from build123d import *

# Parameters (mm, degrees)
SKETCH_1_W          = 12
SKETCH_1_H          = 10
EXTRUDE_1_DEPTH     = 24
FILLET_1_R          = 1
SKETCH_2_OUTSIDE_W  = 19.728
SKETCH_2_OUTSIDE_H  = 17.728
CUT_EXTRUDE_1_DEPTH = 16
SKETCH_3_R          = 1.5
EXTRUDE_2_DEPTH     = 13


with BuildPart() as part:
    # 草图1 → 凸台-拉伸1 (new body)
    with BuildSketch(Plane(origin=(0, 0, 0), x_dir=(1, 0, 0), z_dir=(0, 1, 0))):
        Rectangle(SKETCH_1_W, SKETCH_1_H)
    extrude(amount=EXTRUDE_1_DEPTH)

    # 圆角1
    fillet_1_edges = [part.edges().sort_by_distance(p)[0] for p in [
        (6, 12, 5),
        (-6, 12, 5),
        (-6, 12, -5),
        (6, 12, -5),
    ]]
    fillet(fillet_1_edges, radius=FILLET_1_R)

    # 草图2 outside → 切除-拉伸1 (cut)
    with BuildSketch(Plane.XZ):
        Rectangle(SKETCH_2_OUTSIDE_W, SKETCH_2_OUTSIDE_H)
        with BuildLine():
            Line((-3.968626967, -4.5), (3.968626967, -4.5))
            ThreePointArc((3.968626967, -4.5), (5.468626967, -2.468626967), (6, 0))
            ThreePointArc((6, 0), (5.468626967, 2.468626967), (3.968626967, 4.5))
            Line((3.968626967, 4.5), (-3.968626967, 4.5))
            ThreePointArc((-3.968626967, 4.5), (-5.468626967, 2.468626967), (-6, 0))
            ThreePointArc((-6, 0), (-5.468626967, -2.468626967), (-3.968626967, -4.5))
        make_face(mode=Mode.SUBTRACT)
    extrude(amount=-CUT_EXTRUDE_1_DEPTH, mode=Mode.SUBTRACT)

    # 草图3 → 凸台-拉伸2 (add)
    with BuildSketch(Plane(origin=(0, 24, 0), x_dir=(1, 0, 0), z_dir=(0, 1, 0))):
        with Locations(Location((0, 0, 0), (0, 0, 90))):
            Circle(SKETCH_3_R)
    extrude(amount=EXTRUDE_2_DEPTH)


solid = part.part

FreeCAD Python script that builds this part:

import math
import FreeCAD as App
import Part
import Sketcher

V = App.Vector
Q = App.Units.Quantity


def edges_at(feature, points):
    """Names of the edges that pass closest to the given points."""
    edges = feature.Shape.Edges
    near = lambda p: min(range(len(edges)), key=lambda i: edges[i].distToShape(Part.Vertex(*p))[0])
    return sorted({f"Edge{near(p) + 1}" for p in points})

doc = App.newDocument("Part")
body = doc.addObject("PartDesign::Body", "Body")

sketch1 = body.newObject("Sketcher::SketchObject", "Sketch")
sketch1.AttachmentSupport = (doc.getObject("XZ_Plane"), [""])
sketch1.MapMode = "FlatFace"
sketch1.addGeometry(Part.LineSegment(V(-6, -5, 0), V(-6, 5, 0)), False)
sketch1.addGeometry(Part.LineSegment(V(-6, 5, 0), V(6, 5, 0)), False)
sketch1.addGeometry(Part.LineSegment(V(6, 5, 0), V(6, -5, 0)), False)
sketch1.addGeometry(Part.LineSegment(V(6, -5, 0), V(-6, -5, 0)), False)
sketch1.addConstraint(Sketcher.Constraint("Coincident", 0, 2, 1, 1))
sketch1.addConstraint(Sketcher.Constraint("Coincident", 1, 2, 2, 1))
sketch1.addConstraint(Sketcher.Constraint("Coincident", 2, 2, 3, 1))
sketch1.addConstraint(Sketcher.Constraint("Coincident", 3, 2, 0, 1))
sketch1.addConstraint(Sketcher.Constraint("Vertical", 0))
sketch1.addConstraint(Sketcher.Constraint("Horizontal", 1))
sketch1.addConstraint(Sketcher.Constraint("Vertical", 2))
sketch1.addConstraint(Sketcher.Constraint("Horizontal", 3))
sketch1.addConstraint(Sketcher.Constraint("Symmetric", 0, 2, 2, 2, -1, 1))
sketch1.addConstraint(Sketcher.Constraint("DistanceX", 1, 1, 1, 2, Q("12 mm")))
sketch1.addConstraint(Sketcher.Constraint("DistanceY", 0, 1, 0, 2, Q("10 mm")))
pad1 = body.newObject("PartDesign::Pad", "Pad")
pad1.Profile = sketch1
pad1.Length = 24
pad1.Reversed = True
doc.recompute()

fillet = body.newObject("PartDesign::Fillet", "Fillet")
fillet.Base = (pad1, edges_at(pad1, [
    (6, 12, 5),
    (-6, 12, 5),
    (-6, 12, -5),
    (6, 12, -5),
]))
fillet.Radius = 1

sketch2 = body.newObject("Sketcher::SketchObject", "Sketch001")
sketch2.AttachmentSupport = (doc.getObject("XZ_Plane"), [""])
sketch2.MapMode = "FlatFace"
sketch2.addGeometry(Part.LineSegment(V(-9.9, 8.9, 0), V(-9.9, -8.9, 0)), False)
sketch2.addGeometry(Part.LineSegment(V(-9.9, -8.9, 0), V(9.9, -8.9, 0)), False)
sketch2.addGeometry(Part.LineSegment(V(9.9, -8.9, 0), V(9.9, 8.9, 0)), False)
sketch2.addGeometry(Part.LineSegment(V(9.9, 8.9, 0), V(-9.9, 8.9, 0)), False)
sketch2.addGeometry(Part.LineSegment(V(4, -4.5, 0), V(-4, -4.5, 0)), False)
sketch2.addGeometry(Part.ArcOfCircle(Part.Circle(V(0, 0, 0), V(0, 0, 1), 6), math.radians(180), math.radians(229)), False)
sketch2.addGeometry(Part.ArcOfCircle(Part.Circle(V(0, 0, 0), V(0, 0, 1), 6), math.radians(131), math.radians(180)), False)
sketch2.addGeometry(Part.LineSegment(V(-4, 4.5, 0), V(4, 4.5, 0)), False)
sketch2.addGeometry(Part.ArcOfCircle(Part.Circle(V(0, 0, 0), V(0, 0, 1), 6), math.radians(0), math.radians(49)), False)
sketch2.addGeometry(Part.ArcOfCircle(Part.Circle(V(0, 0, 0), V(0, 0, 1), 6), math.radians(-49), math.radians(0)), False)
sketch2.addConstraint(Sketcher.Constraint("Coincident", 0, 2, 1, 1))
sketch2.addConstraint(Sketcher.Constraint("Coincident", 1, 2, 2, 1))
sketch2.addConstraint(Sketcher.Constraint("Coincident", 2, 2, 3, 1))
sketch2.addConstraint(Sketcher.Constraint("Coincident", 3, 2, 0, 1))
sketch2.addConstraint(Sketcher.Constraint("Coincident", 4, 2, 5, 2))
sketch2.addConstraint(Sketcher.Constraint("Tangent", 5, 1, 6, 2))
sketch2.addConstraint(Sketcher.Constraint("Coincident", 6, 1, 7, 1))
sketch2.addConstraint(Sketcher.Constraint("Coincident", 7, 2, 8, 2))
sketch2.addConstraint(Sketcher.Constraint("Tangent", 8, 1, 9, 2))
sketch2.addConstraint(Sketcher.Constraint("Coincident", 9, 1, 4, 1))
sketch2.addConstraint(Sketcher.Constraint("Vertical", 0))
sketch2.addConstraint(Sketcher.Constraint("Horizontal", 1))
sketch2.addConstraint(Sketcher.Constraint("Vertical", 2))
sketch2.addConstraint(Sketcher.Constraint("Horizontal", 3))
sketch2.addConstraint(Sketcher.Constraint("Horizontal", 4))
sketch2.addConstraint(Sketcher.Constraint("Horizontal", 7))
sketch2.addConstraint(Sketcher.Constraint("Coincident", 5, 3, -1, 1))
sketch2.addConstraint(Sketcher.Constraint("Coincident", 8, 3, -1, 1))
sketch2.addConstraint(Sketcher.Constraint("Equal", 5, 6))
sketch2.addConstraint(Sketcher.Constraint("Equal", 6, 8))
sketch2.addConstraint(Sketcher.Constraint("Equal", 8, 9))
sketch2.addConstraint(Sketcher.Constraint("Symmetric", 0, 2, 2, 2, -1, 1))
sketch2.addConstraint(Sketcher.Constraint("PointOnObject", 5, 1, -1))
sketch2.addConstraint(Sketcher.Constraint("PointOnObject", 8, 1, -1))
sketch2.addConstraint(Sketcher.Constraint("Vertical", 4, 2, 6, 1))
sketch2.addConstraint(Sketcher.Constraint("Radius", 5, Q("6 mm")))
sketch2.addConstraint(Sketcher.Constraint("DistanceY", 4, 2, -1, 1, Q("4.5 mm")))
sketch2.addConstraint(Sketcher.Constraint("DistanceX", 1, 1, 1, 2, Q("19.728 mm")))
sketch2.addConstraint(Sketcher.Constraint("DistanceY", 0, 2, 0, 1, Q("17.728 mm")))
pocket1 = body.newObject("PartDesign::Pocket", "Pocket")
pocket1.Profile = sketch2
pocket1.Length = 16

sketch3 = body.newObject("Sketcher::SketchObject", "Sketch002")
sketch3.AttachmentSupport = (doc.getObject("XZ_Plane"), [""])
sketch3.MapMode = "FlatFace"
sketch3.AttachmentOffset = App.Placement(V(0, 0, -24), App.Rotation())
sketch3.addGeometry(Part.Circle(V(0, 0, 0), V(0, 0, 1), 1.5), False)
sketch3.addConstraint(Sketcher.Constraint("Coincident", 0, 3, -1, 1))
sketch3.addConstraint(Sketcher.Constraint("Diameter", 0, Q("3 mm")))
pad2 = body.newObject("PartDesign::Pad", "Pad001")
pad2.Profile = sketch3
pad2.Length = 13
pad2.Reversed = True

doc.recompute()
